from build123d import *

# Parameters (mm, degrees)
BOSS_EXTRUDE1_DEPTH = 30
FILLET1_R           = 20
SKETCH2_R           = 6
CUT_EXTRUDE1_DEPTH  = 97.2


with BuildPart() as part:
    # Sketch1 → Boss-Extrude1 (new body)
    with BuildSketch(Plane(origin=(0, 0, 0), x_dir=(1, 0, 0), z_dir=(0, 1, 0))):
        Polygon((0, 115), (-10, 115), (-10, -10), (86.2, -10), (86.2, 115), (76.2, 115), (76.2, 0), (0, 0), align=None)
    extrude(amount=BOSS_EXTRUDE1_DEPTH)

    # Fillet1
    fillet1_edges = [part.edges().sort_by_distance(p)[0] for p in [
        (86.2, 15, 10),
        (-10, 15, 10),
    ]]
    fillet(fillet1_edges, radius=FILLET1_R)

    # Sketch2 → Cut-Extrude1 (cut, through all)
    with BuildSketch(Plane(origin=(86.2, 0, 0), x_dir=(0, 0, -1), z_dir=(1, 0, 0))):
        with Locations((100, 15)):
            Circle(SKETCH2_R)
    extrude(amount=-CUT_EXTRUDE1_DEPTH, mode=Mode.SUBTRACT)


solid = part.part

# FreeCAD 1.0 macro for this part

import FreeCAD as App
import Part
import Sketcher
from FreeCAD import Vector
Q = App.Units.Quantity


def edges_at(feature, points):
    """Names of the edges that pass closest to the given points."""
    edges = feature.Shape.Edges
    near = lambda p: min(range(len(edges)), key=lambda i: edges[i].distToShape(Part.Vertex(*p))[0])
    return sorted({f"Edge{near(p) + 1}" for p in points})

doc = App.newDocument("Part")
body = doc.addObject("PartDesign::Body", "Body")

sketch1 = body.newObject("Sketcher::SketchObject", "Sketch")
sketch1.AttachmentSupport = (doc.getObject("XZ_Plane"), [""])
sketch1.MapMode = "FlatFace"
sketch1.addGeometry([
    Part.LineSegment(Vector(0, -115, 0), Vector(-10, -115, 0)),
    Part.LineSegment(Vector(-10, -115, 0), Vector(-10, 10, 0)),
    Part.LineSegment(Vector(-10, 10, 0), Vector(86.2, 10, 0)),
    Part.LineSegment(Vector(86.2, 10, 0), Vector(86.2, -115, 0)),
    Part.LineSegment(Vector(86.2, -115, 0), Vector(76.2, -115, 0)),
    Part.LineSegment(Vector(76.2, -115, 0), Vector(76.2, 0, 0)),
    Part.LineSegment(Vector(76.2, 0, 0), Vector(0, 0, 0)),
    Part.LineSegment(Vector(0, 0, 0), Vector(0, -115, 0)),
], False)
sketch1.addConstraint([
    Sketcher.Constraint("Coincident", 0, 2, 1, 1),
    Sketcher.Constraint("Coincident", 1, 2, 2, 1),
    Sketcher.Constraint("Coincident", 2, 2, 3, 1),
    Sketcher.Constraint("Coincident", 3, 2, 4, 1),
    Sketcher.Constraint("Coincident", 4, 2, 5, 1),
    Sketcher.Constraint("Coincident", 5, 2, 6, 1),
    Sketcher.Constraint("Coincident", 6, 2, 7, 1),
    Sketcher.Constraint("Coincident", 7, 2, 0, 1),
    Sketcher.Constraint("Horizontal", 0),
    Sketcher.Constraint("Vertical", 1),
    Sketcher.Constraint("Horizontal", 2),
    Sketcher.Constraint("Vertical", 3),
    Sketcher.Constraint("Horizontal", 4),
    Sketcher.Constraint("Vertical", 5),
    Sketcher.Constraint("Horizontal", 6),
    Sketcher.Constraint("Vertical", 7),
    Sketcher.Constraint("Coincident", 6, 2, -1, 1),
    Sketcher.Constraint("Horizontal", 0, 2, 3, 2),
    Sketcher.Constraint("Equal", 0, 4),
    Sketcher.Constraint("DistanceX", 0, 2, 0, 1, Q("10 mm")),
    Sketcher.Constraint("DistanceY", 1, 1, 1, 2, Q("125 mm")),
    Sketcher.Constraint("DistanceY", 5, 1, 5, 2, Q("115 mm")),
    Sketcher.Constraint("DistanceX", 2, 1, 2, 2, Q("96.2 mm")),
])
pad1 = body.newObject("PartDesign::Pad", "Pad")
pad1.Profile = sketch1
pad1.Length = 30
pad1.Reversed = True
doc.recompute()

fillet = body.newObject("PartDesign::Fillet", "Fillet")
fillet.Base = (pad1, edges_at(pad1, [(86.2, 15, 10), (-10, 15, 10)]))
fillet.Radius = 20

sketch2 = body.newObject("Sketcher::SketchObject", "Sketch001")
sketch2.AttachmentSupport = (doc.getObject("YZ_Plane"), [""])
sketch2.MapMode = "FlatFace"
sketch2.AttachmentOffset = App.Placement(Vector(0, 0, 86.2), App.Rotation())
sketch2.addGeometry(Part.Circle(Vector(15, -100, 0), Vector(0, 0, 1), 6), False)
sketch2.addConstraint([
    Sketcher.Constraint("Diameter", 0, Q("12 mm")),
    Sketcher.Constraint("DistanceX", -1, 1, 0, 3, Q("15 mm")),
    Sketcher.Constraint("DistanceY", 0, 3, -1, 1, Q("100 mm")),
])
pocket1 = body.newObject("PartDesign::Pocket", "Pocket")
pocket1.Profile = sketch2
pocket1.Type = "ThroughAll"

doc.recompute()
